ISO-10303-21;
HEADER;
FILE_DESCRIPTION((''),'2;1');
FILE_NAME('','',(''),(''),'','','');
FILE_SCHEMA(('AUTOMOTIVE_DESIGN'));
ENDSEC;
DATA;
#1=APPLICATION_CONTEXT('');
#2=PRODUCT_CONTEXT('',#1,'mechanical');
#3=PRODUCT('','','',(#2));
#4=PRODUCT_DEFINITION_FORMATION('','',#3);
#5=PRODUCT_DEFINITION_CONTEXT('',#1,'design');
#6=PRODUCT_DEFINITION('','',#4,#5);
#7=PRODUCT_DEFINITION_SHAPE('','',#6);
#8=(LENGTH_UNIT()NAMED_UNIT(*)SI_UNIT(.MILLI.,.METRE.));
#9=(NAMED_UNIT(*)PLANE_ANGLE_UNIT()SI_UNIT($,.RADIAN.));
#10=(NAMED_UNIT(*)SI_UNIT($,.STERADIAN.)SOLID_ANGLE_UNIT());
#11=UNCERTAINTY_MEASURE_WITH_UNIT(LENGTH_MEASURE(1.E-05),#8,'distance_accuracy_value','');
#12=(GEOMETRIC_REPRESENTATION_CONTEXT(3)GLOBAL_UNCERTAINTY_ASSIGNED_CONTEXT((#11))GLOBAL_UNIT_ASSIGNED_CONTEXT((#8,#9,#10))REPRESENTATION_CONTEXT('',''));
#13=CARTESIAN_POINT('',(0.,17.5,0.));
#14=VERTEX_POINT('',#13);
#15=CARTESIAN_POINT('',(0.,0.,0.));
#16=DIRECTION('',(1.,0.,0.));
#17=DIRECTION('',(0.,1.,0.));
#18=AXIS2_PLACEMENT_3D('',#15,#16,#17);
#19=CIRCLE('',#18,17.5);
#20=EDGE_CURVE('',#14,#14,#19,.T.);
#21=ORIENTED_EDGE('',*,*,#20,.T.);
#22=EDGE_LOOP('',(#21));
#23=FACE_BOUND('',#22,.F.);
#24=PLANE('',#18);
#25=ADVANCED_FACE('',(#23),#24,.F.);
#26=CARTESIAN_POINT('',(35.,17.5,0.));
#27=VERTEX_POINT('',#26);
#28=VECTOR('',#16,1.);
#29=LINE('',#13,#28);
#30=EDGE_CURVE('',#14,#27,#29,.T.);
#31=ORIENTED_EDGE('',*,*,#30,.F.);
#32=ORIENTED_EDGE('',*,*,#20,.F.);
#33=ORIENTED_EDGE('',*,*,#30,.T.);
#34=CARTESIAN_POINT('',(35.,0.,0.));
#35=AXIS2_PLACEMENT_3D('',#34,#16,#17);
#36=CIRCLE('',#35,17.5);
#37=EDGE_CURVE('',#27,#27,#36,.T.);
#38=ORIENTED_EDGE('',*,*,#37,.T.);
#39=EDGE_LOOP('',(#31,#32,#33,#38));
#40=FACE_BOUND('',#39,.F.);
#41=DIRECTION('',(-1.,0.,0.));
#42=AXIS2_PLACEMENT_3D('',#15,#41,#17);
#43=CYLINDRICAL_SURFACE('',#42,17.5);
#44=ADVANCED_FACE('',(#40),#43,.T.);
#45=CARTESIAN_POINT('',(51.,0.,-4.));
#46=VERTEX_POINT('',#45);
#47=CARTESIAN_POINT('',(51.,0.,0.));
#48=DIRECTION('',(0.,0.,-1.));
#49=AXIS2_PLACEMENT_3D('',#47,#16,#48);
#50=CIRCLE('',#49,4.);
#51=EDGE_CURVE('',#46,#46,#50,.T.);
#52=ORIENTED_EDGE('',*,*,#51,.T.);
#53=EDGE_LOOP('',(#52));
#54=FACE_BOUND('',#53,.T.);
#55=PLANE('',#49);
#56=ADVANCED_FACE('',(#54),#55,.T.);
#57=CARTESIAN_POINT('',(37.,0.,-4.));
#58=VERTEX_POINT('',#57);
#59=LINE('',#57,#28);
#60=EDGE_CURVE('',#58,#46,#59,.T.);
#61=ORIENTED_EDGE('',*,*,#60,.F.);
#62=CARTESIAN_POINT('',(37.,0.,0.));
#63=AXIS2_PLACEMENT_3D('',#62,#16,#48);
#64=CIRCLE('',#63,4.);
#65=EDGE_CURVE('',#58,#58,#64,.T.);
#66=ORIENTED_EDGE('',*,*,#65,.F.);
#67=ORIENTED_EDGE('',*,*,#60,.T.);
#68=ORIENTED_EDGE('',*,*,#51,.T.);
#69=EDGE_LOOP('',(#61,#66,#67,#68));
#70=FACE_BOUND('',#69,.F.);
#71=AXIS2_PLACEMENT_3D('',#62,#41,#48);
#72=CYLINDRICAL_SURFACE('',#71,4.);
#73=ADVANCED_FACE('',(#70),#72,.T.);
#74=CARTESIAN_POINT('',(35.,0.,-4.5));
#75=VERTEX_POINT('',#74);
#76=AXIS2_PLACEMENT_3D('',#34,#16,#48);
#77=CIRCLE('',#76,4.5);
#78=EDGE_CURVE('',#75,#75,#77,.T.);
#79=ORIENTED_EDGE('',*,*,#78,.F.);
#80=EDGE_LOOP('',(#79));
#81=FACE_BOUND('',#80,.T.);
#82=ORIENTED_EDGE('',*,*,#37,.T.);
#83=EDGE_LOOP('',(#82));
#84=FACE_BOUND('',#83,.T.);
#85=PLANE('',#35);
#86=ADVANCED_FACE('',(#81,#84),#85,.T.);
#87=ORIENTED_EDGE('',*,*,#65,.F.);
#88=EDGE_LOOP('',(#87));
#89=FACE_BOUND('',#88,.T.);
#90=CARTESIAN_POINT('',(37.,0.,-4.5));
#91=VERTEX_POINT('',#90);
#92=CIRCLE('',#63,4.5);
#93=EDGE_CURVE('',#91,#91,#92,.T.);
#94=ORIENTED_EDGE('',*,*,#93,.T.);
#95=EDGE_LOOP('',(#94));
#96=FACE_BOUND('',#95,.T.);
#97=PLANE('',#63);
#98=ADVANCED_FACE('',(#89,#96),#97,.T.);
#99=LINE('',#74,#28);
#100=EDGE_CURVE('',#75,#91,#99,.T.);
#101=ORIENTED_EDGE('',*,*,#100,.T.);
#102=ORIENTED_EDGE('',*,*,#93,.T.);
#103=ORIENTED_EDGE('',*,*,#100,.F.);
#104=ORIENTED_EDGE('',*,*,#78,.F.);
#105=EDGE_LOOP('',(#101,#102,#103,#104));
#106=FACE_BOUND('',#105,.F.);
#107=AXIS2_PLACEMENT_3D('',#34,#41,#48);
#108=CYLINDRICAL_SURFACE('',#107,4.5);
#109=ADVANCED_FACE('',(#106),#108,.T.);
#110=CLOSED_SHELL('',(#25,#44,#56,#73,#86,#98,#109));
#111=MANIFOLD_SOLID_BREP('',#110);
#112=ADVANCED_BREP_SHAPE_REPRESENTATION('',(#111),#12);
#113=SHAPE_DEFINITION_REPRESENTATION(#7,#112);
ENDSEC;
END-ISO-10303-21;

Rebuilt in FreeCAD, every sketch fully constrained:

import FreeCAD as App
import Part
import Sketcher

doc = App.newDocument("Part")
body = doc.addObject("PartDesign::Body", "Body")

sketch1 = body.newObject("Sketcher::SketchObject", "Sketch")
sketch1.AttachmentSupport = (doc.getObject("YZ_Plane"), [""])
sketch1.MapMode = "FlatFace"
sketch1.addGeometry(Part.Circle(App.Vector(0, 0, 0), App.Vector(0, 0, 1), 18), False)
sketch1.addConstraint(Sketcher.Constraint("Coincident", 0, 3, -1, 1))
sketch1.addConstraint(Sketcher.Constraint("Diameter", 0, 35.0))
pad1 = body.newObject("PartDesign::Pad", "Pad")
pad1.Profile = sketch1
pad1.Length = 35

sketch2 = body.newObject("Sketcher::SketchObject", "Sketch001")
sketch2.AttachmentSupport = (doc.getObject("YZ_Plane"), [""])
sketch2.MapMode = "FlatFace"
sketch2.AttachmentOffset = App.Placement(App.Vector(0, 0, 35), App.Rotation())
sketch2.addGeometry(Part.Circle(App.Vector(0, 0, 0), App.Vector(0, 0, 1), 4.5), False)
sketch2.addConstraint(Sketcher.Constraint("Coincident", 0, 3, -1, 1))
sketch2.addConstraint(Sketcher.Constraint("Diameter", 0, 9.0))
pad2 = body.newObject("PartDesign::Pad", "Pad001")
pad2.Profile = sketch2
pad2.Length = 2

sketch3 = body.newObject("Sketcher::SketchObject", "Sketch002")
sketch3.AttachmentSupport = (doc.getObject("YZ_Plane"), [""])
sketch3.MapMode = "FlatFace"
sketch3.AttachmentOffset = App.Placement(App.Vector(0, 0, 37), App.Rotation())
sketch3.addGeometry(Part.Circle(App.Vector(0, 0, 0), App.Vector(0, 0, 1), 4), False)
sketch3.addConstraint(Sketcher.Constraint("Coincident", 0, 3, -1, 1))
sketch3.addConstraint(Sketcher.Constraint("Diameter", 0, 8.0))
pad3 = body.newObject("PartDesign::Pad", "Pad002")
pad3.Profile = sketch3
pad3.Length = 14

doc.recompute()
